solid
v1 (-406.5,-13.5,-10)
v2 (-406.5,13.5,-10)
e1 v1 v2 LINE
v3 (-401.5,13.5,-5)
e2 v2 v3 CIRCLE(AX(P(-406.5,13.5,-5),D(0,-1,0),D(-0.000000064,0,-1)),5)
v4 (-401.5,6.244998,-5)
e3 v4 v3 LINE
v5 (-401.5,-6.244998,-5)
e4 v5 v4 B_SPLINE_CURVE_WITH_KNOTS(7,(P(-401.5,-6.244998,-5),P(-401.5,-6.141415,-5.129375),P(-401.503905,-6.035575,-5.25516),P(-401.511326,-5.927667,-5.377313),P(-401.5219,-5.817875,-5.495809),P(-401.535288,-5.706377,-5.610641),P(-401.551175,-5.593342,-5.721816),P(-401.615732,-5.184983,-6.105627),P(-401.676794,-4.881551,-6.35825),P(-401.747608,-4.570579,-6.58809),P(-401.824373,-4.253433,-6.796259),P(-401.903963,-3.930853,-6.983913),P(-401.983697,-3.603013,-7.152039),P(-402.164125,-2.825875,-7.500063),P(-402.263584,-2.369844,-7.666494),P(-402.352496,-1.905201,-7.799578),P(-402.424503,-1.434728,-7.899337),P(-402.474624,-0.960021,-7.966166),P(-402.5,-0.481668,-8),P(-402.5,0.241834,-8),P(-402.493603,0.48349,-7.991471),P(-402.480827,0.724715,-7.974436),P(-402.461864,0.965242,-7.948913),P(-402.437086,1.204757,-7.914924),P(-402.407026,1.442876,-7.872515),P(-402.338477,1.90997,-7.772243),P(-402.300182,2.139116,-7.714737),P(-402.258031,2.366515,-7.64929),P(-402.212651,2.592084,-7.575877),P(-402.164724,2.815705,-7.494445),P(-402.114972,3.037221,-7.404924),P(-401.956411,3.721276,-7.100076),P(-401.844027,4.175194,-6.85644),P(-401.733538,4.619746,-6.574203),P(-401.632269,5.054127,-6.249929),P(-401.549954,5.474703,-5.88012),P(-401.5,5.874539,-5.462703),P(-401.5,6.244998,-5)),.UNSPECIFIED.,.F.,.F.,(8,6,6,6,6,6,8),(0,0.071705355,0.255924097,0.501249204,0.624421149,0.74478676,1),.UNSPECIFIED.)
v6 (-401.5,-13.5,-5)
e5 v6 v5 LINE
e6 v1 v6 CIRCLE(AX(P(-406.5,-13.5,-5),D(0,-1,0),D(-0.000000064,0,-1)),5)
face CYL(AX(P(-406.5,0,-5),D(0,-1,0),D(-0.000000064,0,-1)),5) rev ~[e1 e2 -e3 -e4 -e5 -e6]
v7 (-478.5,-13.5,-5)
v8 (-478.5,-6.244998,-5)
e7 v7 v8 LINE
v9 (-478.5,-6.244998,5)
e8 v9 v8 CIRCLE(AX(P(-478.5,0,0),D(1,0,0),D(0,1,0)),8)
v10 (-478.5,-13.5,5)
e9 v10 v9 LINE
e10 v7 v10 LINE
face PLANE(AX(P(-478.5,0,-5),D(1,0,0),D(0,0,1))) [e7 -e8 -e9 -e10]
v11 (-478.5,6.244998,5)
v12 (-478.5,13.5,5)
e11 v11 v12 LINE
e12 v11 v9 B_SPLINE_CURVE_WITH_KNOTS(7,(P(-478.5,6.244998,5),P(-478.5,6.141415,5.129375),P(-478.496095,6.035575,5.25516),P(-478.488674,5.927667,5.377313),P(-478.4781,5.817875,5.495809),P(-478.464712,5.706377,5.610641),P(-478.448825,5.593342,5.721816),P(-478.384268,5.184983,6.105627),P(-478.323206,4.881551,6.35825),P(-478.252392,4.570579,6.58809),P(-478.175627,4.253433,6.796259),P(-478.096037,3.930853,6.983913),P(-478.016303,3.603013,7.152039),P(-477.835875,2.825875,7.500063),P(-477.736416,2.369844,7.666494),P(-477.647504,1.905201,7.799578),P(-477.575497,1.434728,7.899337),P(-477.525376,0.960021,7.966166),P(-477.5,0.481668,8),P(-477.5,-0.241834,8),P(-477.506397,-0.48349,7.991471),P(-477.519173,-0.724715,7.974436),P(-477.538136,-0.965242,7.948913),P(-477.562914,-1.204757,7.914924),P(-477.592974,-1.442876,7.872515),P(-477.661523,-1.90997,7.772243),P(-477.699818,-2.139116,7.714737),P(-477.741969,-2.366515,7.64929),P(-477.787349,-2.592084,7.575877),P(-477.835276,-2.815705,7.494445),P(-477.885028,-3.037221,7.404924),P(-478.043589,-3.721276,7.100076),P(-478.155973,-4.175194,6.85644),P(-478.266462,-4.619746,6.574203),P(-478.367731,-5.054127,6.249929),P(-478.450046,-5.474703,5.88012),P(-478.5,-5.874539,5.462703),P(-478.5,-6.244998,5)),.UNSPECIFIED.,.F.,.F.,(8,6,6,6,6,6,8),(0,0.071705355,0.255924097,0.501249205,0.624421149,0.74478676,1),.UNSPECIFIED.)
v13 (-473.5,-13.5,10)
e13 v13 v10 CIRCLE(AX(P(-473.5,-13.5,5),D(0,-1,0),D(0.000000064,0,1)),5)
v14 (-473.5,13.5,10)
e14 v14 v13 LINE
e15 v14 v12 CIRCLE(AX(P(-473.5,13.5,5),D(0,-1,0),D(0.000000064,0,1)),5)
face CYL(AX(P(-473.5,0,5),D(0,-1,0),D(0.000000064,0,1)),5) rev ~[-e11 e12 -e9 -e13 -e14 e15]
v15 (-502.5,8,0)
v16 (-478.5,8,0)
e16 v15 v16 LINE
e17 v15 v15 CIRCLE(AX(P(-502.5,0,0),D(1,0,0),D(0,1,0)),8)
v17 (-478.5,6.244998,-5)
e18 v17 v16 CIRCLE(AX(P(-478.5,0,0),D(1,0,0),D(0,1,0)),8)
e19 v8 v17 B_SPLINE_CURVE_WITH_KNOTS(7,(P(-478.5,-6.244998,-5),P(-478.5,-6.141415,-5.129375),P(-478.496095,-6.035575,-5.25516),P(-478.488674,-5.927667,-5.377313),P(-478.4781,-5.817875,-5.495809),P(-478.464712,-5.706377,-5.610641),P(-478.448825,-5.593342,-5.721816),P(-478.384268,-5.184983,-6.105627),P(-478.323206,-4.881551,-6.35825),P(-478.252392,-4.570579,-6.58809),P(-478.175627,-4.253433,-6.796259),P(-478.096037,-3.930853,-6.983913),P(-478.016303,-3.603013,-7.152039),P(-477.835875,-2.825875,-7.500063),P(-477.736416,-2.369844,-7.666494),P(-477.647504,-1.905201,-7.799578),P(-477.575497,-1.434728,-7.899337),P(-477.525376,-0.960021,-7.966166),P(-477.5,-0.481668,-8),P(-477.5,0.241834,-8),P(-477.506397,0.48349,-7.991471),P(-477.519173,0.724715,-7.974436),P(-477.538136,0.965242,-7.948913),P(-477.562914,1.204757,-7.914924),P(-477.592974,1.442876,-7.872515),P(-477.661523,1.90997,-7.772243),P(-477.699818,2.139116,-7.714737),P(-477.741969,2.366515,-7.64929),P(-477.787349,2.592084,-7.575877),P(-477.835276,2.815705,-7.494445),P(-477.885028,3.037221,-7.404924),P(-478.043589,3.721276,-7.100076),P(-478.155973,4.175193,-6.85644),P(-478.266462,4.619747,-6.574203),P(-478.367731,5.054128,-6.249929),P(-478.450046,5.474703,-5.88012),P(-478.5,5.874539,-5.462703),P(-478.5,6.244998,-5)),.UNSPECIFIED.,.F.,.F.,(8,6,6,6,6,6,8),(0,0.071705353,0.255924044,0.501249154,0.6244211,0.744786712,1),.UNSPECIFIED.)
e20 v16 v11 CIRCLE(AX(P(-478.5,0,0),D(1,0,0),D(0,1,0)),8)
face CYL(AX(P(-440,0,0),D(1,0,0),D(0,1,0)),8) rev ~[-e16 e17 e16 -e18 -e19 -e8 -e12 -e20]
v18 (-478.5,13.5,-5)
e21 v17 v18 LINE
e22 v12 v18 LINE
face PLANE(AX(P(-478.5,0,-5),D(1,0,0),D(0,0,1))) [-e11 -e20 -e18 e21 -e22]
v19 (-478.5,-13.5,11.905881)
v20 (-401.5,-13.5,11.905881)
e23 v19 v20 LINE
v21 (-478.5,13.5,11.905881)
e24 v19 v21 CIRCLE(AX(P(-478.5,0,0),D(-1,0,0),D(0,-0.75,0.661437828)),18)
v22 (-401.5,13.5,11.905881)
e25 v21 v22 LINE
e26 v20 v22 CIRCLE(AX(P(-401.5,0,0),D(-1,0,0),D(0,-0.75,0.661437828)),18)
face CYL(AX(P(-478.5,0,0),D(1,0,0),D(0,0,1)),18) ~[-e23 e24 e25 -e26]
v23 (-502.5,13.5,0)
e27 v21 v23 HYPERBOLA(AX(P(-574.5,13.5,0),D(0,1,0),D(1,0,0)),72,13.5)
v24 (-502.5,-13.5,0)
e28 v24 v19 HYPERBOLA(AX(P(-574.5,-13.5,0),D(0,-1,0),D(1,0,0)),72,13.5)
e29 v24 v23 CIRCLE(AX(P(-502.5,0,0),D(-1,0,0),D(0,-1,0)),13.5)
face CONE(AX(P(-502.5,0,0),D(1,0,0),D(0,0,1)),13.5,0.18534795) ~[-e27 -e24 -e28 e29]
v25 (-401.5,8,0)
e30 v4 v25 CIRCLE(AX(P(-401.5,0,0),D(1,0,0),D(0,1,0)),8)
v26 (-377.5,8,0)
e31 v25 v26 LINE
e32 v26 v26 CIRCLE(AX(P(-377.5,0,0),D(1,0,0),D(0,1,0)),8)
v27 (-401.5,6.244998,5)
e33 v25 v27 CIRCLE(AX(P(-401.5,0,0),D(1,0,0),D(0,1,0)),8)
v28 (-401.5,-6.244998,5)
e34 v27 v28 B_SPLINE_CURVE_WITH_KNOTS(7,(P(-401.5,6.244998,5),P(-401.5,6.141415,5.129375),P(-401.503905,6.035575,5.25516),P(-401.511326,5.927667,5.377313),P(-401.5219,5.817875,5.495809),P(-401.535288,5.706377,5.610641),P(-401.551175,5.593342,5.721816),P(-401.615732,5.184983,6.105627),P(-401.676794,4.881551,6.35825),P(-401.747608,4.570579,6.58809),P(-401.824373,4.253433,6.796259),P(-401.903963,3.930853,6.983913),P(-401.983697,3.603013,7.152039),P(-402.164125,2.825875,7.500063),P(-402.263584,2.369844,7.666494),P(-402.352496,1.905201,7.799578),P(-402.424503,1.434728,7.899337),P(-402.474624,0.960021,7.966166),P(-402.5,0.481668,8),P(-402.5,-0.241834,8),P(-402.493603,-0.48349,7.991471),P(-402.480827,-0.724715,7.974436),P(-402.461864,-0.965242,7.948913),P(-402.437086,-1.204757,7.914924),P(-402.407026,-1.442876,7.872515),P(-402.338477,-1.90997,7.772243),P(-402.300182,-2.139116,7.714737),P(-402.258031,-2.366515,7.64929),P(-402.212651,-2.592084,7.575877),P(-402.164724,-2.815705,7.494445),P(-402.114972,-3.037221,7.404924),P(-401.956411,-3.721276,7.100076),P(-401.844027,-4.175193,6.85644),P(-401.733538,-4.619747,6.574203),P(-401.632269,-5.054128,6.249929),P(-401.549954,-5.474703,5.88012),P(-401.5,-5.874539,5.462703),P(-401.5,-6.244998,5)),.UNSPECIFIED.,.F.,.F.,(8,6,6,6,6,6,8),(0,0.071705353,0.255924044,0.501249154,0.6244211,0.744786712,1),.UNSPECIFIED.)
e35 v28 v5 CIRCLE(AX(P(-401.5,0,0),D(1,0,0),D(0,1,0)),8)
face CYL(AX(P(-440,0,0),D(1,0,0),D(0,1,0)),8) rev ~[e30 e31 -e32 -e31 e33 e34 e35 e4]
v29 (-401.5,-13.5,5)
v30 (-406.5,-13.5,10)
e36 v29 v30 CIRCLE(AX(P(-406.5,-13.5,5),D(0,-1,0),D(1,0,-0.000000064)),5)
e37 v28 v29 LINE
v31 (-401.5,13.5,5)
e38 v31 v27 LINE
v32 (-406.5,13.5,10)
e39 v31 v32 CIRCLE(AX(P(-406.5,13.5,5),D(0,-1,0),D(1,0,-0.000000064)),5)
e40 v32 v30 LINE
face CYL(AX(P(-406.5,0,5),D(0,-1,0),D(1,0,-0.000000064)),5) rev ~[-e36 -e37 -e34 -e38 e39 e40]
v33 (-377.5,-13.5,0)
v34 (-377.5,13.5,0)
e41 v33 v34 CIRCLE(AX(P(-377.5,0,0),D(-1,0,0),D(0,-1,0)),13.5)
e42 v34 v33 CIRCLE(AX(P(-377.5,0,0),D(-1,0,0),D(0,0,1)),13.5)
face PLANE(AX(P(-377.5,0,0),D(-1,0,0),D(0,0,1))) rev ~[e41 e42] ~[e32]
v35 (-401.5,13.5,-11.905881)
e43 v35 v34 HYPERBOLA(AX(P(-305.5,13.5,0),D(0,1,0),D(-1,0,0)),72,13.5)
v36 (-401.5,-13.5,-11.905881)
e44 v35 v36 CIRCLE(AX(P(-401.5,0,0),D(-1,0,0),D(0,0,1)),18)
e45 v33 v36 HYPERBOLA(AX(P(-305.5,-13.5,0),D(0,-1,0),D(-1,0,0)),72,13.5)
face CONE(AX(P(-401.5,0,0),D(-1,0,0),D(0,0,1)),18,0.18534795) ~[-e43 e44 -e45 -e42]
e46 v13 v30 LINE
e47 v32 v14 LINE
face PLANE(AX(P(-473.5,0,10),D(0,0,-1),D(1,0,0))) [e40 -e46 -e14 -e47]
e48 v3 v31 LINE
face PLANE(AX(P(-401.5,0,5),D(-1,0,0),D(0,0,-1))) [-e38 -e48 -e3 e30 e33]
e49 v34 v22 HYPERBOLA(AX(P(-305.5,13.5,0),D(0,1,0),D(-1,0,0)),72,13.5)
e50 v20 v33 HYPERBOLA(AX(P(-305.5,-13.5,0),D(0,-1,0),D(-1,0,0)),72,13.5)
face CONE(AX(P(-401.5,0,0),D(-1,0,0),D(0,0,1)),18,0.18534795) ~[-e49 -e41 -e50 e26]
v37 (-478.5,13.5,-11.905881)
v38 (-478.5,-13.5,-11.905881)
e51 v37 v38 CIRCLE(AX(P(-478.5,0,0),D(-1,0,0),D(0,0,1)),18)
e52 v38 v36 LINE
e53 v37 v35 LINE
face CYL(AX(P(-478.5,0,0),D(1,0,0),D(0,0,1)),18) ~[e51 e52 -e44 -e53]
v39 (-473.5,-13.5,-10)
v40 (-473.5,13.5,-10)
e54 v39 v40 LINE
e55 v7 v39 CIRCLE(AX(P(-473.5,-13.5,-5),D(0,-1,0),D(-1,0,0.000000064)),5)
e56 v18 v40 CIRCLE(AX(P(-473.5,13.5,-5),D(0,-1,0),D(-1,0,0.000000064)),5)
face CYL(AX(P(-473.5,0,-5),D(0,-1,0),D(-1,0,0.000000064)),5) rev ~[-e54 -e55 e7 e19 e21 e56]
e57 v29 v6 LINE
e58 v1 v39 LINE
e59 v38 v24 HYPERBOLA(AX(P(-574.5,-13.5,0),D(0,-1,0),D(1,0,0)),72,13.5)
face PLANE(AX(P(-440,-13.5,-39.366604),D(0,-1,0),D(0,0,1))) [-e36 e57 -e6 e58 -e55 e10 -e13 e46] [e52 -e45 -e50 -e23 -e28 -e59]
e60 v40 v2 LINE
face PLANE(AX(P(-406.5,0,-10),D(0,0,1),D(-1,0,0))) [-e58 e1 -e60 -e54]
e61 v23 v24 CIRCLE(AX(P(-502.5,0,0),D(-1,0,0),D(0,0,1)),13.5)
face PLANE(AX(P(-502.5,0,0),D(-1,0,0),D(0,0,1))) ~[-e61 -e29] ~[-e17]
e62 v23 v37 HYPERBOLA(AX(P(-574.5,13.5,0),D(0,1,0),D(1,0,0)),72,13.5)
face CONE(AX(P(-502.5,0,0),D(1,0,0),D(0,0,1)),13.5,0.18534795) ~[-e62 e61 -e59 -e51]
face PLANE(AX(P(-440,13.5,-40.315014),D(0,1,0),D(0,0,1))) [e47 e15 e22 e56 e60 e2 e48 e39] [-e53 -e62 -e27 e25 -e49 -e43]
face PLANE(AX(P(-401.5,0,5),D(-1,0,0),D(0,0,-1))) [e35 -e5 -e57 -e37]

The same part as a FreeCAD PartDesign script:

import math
import FreeCAD as App
import Part
import Sketcher
from FreeCAD import Vector


def add_polygon(sketch, points):
    """Adds a closed chain of lines whose ends are joined by coincident constraints."""
    first, n = sketch.GeometryCount, len(points)
    for a, b in zip(points, points[1:] + points[:1]):
        sketch.addGeometry(Part.LineSegment(App.Vector(*a, 0), App.Vector(*b, 0)), False)
    for i in range(n):
        sketch.addConstraint(Sketcher.Constraint("Coincident", first + i, 2, first + (i + 1) % n, 1))

doc = App.newDocument("Part")
body = doc.addObject("PartDesign::Body", "Body")

sketch1 = doc.addObject("Sketcher::SketchObject", "Sketch")
body.addObject(sketch1)
sketch1.AttachmentSupport = (doc.YZ_Plane, [""])
sketch1.MapMode = "FlatFace"
sketch1.addGeometry(Part.Circle(Vector(0, 0, 0), Vector(0, 0, 1), 8), False)
sketch1.addConstraint([
    Sketcher.Constraint("Coincident", 0, 3, -1, 1),
    Sketcher.Constraint("Diameter", 0, 16.0),
])
pad1 = doc.addObject("PartDesign::Pad", "Pad")
body.addObject(pad1)
pad1.Profile = sketch1
pad1.Length = 300
pad1.Midplane = True
body2 = doc.addObject("PartDesign::Body", "Body001")

sketch2 = doc.addObject("Sketcher::SketchObject", "Sketch001")
body2.addObject(sketch2)
sketch2.AttachmentSupport = (doc.getObject("XZ_Plane001"), [""])
sketch2.MapMode = "FlatFace"
sketch2.addGeometry([
    Part.LineSegment(Vector(38.5, -5, 0), Vector(38.5, 5, 0)),
    Part.ArcOfCircle(Part.Circle(Vector(33.5, 5, 0), Vector(0, 0, 1), 5), math.radians(0), math.radians(90)),
    Part.LineSegment(Vector(33.5, 10, 0), Vector(-33.5, 10, 0)),
    Part.ArcOfCircle(Part.Circle(Vector(-33.5, 5, 0), Vector(0, 0, 1), 5), math.radians(90), math.radians(180)),
    Part.LineSegment(Vector(-38.5, 5, 0), Vector(-38.5, -5, 0)),
    Part.ArcOfCircle(Part.Circle(Vector(-33.5, -5, 0), Vector(0, 0, 1), 5), math.radians(180), math.radians(270)),
    Part.LineSegment(Vector(-33.5, -10, 0), Vector(33.5, -10, 0)),
    Part.ArcOfCircle(Part.Circle(Vector(33.5, -5, 0), Vector(0, 0, 1), 5), math.radians(-90), math.radians(0)),
], False)
sketch2.addConstraint([
    Sketcher.Constraint("Tangent", 0, 2, 1, 1),
    Sketcher.Constraint("Tangent", 1, 2, 2, 1),
    Sketcher.Constraint("Tangent", 2, 2, 3, 1),
    Sketcher.Constraint("Tangent", 3, 2, 4, 1),
    Sketcher.Constraint("Tangent", 4, 2, 5, 1),
    Sketcher.Constraint("Tangent", 5, 2, 6, 1),
    Sketcher.Constraint("Tangent", 6, 2, 7, 1),
    Sketcher.Constraint("Tangent", 7, 2, 0, 1),
    Sketcher.Constraint("Vertical", 0),
    Sketcher.Constraint("Horizontal", 2),
    Sketcher.Constraint("Vertical", 4),
    Sketcher.Constraint("Horizontal", 6),
    Sketcher.Constraint("Equal", 1, 3),
    Sketcher.Constraint("Equal", 3, 5),
    Sketcher.Constraint("Equal", 5, 7),
    Sketcher.Constraint("Symmetric", 1, 3, 5, 3, -1, 1),
    Sketcher.Constraint("Radius", 1, 5.0),
    Sketcher.Constraint("DistanceX", 2, 2, 2, 1, 67.0),
    Sketcher.Constraint("DistanceY", 0, 1, 0, 2, 10.0),
])
pad2 = doc.addObject("PartDesign::Pad", "Pad001")
body2.addObject(pad2)
pad2.Profile = sketch2
pad2.Length = 60
pad2.Midplane = True
body3 = doc.addObject("PartDesign::Body", "Body002")
body3.AllowCompound = True

sketch3 = doc.addObject("Sketcher::SketchObject", "Sketch002")
body3.addObject(sketch3)
sketch3.AttachmentSupport = (doc.getObject("YZ_Plane002"), [""])
sketch3.MapMode = "FlatFace"
add_polygon(sketch3, [(-28, 40), (-28, -39), (-14, -39), (-14, 40)])
add_polygon(sketch3, [(14, 40), (14, -40), (28, -40), (28, 40)])
sketch3.addConstraint([
    Sketcher.Constraint("Vertical", 0),
    Sketcher.Constraint("Horizontal", 1),
    Sketcher.Constraint("Vertical", 2),
    Sketcher.Constraint("Horizontal", 3),
    Sketcher.Constraint("Vertical", 4),
    Sketcher.Constraint("Horizontal", 5),
    Sketcher.Constraint("Vertical", 6),
    Sketcher.Constraint("Horizontal", 7),
    Sketcher.Constraint("Symmetric", 3, 2, 6, 2, -2),
    Sketcher.Constraint("Equal", 3, 5),
    Sketcher.Constraint("DistanceX", 1, 1, 1, 2, 15.0),
    Sketcher.Constraint("DistanceY", 4, 2, 4, 1, 80.0),
    Sketcher.Constraint("DistanceX", 1, 2, 4, 2, 27.0),
    Sketcher.Constraint("DistanceY", 0, 2, 0, 1, 79.05159),
    Sketcher.Constraint("DistanceY", 0, 2, -1, 1, 39.366604),
])
pad3 = doc.addObject("PartDesign::Pad", "Pad002")
body3.addObject(pad3)
pad3.Profile = sketch3
pad3.Length = 300
pad3.Midplane = True
body4 = doc.addObject("PartDesign::Body", "Body003")

sketch4 = doc.addObject("Sketcher::SketchObject", "Sketch003")
body4.addObject(sketch4)
sketch4.AttachmentSupport = (doc.getObject("XZ_Plane003"), [""])
sketch4.MapMode = "FlatFace"
add_polygon(sketch4, [(-62, 14), (-62, 0), (62, 0), (62, 14), (38, 18), (-38, 18)])
sketch4.addConstraint([
    Sketcher.Constraint("Vertical", 0),
    Sketcher.Constraint("Horizontal", 1),
    Sketcher.Constraint("Vertical", 2),
    Sketcher.Constraint("Horizontal", 4),
    Sketcher.Constraint("Symmetric", 0, 2, 1, 2, -1, 1),
    Sketcher.Constraint("Horizontal", 2, 2, 5, 2),
    Sketcher.Constraint("Equal", 3, 5),
    Sketcher.Constraint("DistanceX", 1, 1, 1, 2, 125.0),
    Sketcher.Constraint("DistanceX", 4, 2, 4, 1, 77.0),
    Sketcher.Constraint("DistanceY", 0, 2, 0, 1, 13.5),
    Sketcher.Constraint("DistanceY", -1, 1, 3, 2, 18.0),
])
revolution = doc.addObject("PartDesign::Revolution", "Revolution")
body4.addObject(revolution)
revolution.Profile = sketch4
revolution.ReferenceAxis = (sketch4, ["H_Axis"])
revolution.Angle = 360
doc.recompute()

boolean = doc.addObject("PartDesign::Boolean", "Boolean")
body4.addObject(boolean)
boolean.Type = "Cut"
boolean.addObjects([body3])
doc.recompute()

boolean2 = doc.addObject("PartDesign::Boolean", "Boolean001")
body4.addObject(boolean2)
boolean2.Type = "Cut"
boolean2.addObjects([body2])
doc.recompute()

boolean3 = doc.addObject("PartDesign::Boolean", "Boolean002")
body4.addObject(boolean3)
boolean3.Type = "Cut"
boolean3.addObjects([body])
body5 = doc.addObject("PartDesign::Body", "Body004")
doc.recompute()

body4.Placement = App.Placement(Vector(-440, 0, 0), App.Rotation(Vector(0, 0, 1), 0))
boolean4 = doc.addObject("PartDesign::Boolean", "Boolean003")
body5.addObject(boolean4)
boolean4.Type = "Fuse"
boolean4.addObjects([body4])

doc.recompute()
